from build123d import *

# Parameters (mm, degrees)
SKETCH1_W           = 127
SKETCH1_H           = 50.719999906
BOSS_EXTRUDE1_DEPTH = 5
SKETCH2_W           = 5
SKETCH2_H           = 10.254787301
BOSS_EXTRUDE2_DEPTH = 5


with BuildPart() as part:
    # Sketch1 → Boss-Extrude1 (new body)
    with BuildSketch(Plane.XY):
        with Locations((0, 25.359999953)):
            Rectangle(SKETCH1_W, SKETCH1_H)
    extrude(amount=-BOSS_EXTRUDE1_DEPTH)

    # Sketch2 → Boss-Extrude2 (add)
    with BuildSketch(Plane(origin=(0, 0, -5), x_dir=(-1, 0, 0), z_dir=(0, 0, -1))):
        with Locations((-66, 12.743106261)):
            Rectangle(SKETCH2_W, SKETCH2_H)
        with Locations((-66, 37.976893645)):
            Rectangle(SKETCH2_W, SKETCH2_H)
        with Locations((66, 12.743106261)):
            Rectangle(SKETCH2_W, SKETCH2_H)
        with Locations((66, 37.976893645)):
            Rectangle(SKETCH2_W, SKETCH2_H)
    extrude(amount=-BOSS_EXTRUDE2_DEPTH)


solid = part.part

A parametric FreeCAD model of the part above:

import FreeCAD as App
import Part
import Sketcher

doc = App.newDocument("Part")
body = doc.addObject("PartDesign::Body", "Body")

# Sketch on XY plane
sketch1 = body.newObject("Sketcher::SketchObject", "Sketch")
sketch1.AttachmentSupport = (doc.getObject("XY_Plane"), [""])
sketch1.MapMode = "FlatFace"
sketch1.addGeometry([
    Part.LineSegment(App.Vector(-63.5, 50.72, 0), App.Vector(-63.5, 0, 0)),
    Part.LineSegment(App.Vector(-63.5, 0, 0), App.Vector(63.5, 0, 0)),
    Part.LineSegment(App.Vector(63.5, 0, 0), App.Vector(63.5, 50.72, 0)),
    Part.LineSegment(App.Vector(63.5, 50.72, 0), App.Vector(-63.5, 50.72, 0)),
], False)
sketch1.addConstraint([
    Sketcher.Constraint("Coincident", 0, 2, 1, 1),
    Sketcher.Constraint("Coincident", 1, 2, 2, 1),
    Sketcher.Constraint("Coincident", 2, 2, 3, 1),
    Sketcher.Constraint("Coincident", 3, 2, 0, 1),
    Sketcher.Constraint("Vertical", 0),
    Sketcher.Constraint("Horizontal", 1),
    Sketcher.Constraint("Vertical", 2),
    Sketcher.Constraint("Horizontal", 3),
    Sketcher.Constraint("Symmetric", 0, 2, 1, 2, -1, 1),
    Sketcher.Constraint("DistanceX", 1, 1, 1, 2, 127.0),
    Sketcher.Constraint("DistanceY", 0, 2, 0, 1, 50.72),
])
pad1 = body.newObject("PartDesign::Pad", "Pad")
pad1.Profile = sketch1
pad1.Length = 5
pad1.Reversed = True

# Sketch on XY plane
sketch2 = body.newObject("Sketcher::SketchObject", "Sketch001")
sketch2.AttachmentSupport = (doc.getObject("XY_Plane"), [""])
sketch2.MapMode = "FlatFace"
sketch2.AttachmentOffset = App.Placement(App.Vector(0, 0, -5), App.Rotation())
sketch2.addGeometry([
    Part.LineSegment(App.Vector(68.5, 17.8705, 0), App.Vector(68.5, 7.615713, 0)),  # 0
    Part.LineSegment(App.Vector(68.5, 7.615713, 0), App.Vector(63.5, 7.615713, 0)),  # 1
    Part.LineSegment(App.Vector(63.5, 7.615713, 0), App.Vector(63.5, 17.8705, 0)),  # 2
    Part.LineSegment(App.Vector(63.5, 17.8705, 0), App.Vector(68.5, 17.8705, 0)),  # 3
    Part.LineSegment(App.Vector(68.5, 43.104287, 0), App.Vector(68.5, 32.8495, 0)),  # 4
    Part.LineSegment(App.Vector(68.5, 32.8495, 0), App.Vector(63.5, 32.8495, 0)),  # 5
    Part.LineSegment(App.Vector(63.5, 32.8495, 0), App.Vector(63.5, 43.104287, 0)),  # 6
    Part.LineSegment(App.Vector(63.5, 43.104287, 0), App.Vector(68.5, 43.104287, 0)),  # 7
    Part.LineSegment(App.Vector(-63.5, 17.8705, 0), App.Vector(-63.5, 7.615713, 0)),  # 8
    Part.LineSegment(App.Vector(-63.5, 7.615713, 0), App.Vector(-68.5, 7.615713, 0)),  # 9
    Part.LineSegment(App.Vector(-68.5, 7.615713, 0), App.Vector(-68.5, 17.8705, 0)),  # 10
    Part.LineSegment(App.Vector(-68.5, 17.8705, 0), App.Vector(-63.5, 17.8705, 0)),  # 11
    Part.LineSegment(App.Vector(-63.5, 43.104287, 0), App.Vector(-63.5, 32.8495, 0)),  # 12
    Part.LineSegment(App.Vector(-63.5, 32.8495, 0), App.Vector(-68.5, 32.8495, 0)),  # 13
    Part.LineSegment(App.Vector(-68.5, 32.8495, 0), App.Vector(-68.5, 43.104287, 0)),  # 14
    Part.LineSegment(App.Vector(-68.5, 43.104287, 0), App.Vector(-63.5, 43.104287, 0)),  # 15
], False)
sketch2.addConstraint([
    Sketcher.Constraint("Coincident", 0, 2, 1, 1),
    Sketcher.Constraint("Coincident", 1, 2, 2, 1),
    Sketcher.Constraint("Coincident", 2, 2, 3, 1),
    Sketcher.Constraint("Coincident", 3, 2, 0, 1),
    Sketcher.Constraint("Coincident", 4, 2, 5, 1),
    Sketcher.Constraint("Coincident", 5, 2, 6, 1),
    Sketcher.Constraint("Coincident", 6, 2, 7, 1),
    Sketcher.Constraint("Coincident", 7, 2, 4, 1),
    Sketcher.Constraint("Coincident", 8, 2, 9, 1),
    Sketcher.Constraint("Coincident", 9, 2, 10, 1),
    Sketcher.Constraint("Coincident", 10, 2, 11, 1),
    Sketcher.Constraint("Coincident", 11, 2, 8, 1),
    Sketcher.Constraint("Coincident", 12, 2, 13, 1),
    Sketcher.Constraint("Coincident", 13, 2, 14, 1),
    Sketcher.Constraint("Coincident", 14, 2, 15, 1),
    Sketcher.Constraint("Coincident", 15, 2, 12, 1),
    Sketcher.Constraint("Vertical", 0),
    Sketcher.Constraint("Horizontal", 1),
    Sketcher.Constraint("Vertical", 2),
    Sketcher.Constraint("Horizontal", 3),
    Sketcher.Constraint("Vertical", 4),
    Sketcher.Constraint("Horizontal", 5),
    Sketcher.Constraint("Vertical", 6),
    Sketcher.Constraint("Horizontal", 7),
    Sketcher.Constraint("Vertical", 8),
    Sketcher.Constraint("Horizontal", 9),
    Sketcher.Constraint("Vertical", 10),
    Sketcher.Constraint("Horizontal", 11),
    Sketcher.Constraint("Vertical", 12),
    Sketcher.Constraint("Horizontal", 13),
    Sketcher.Constraint("Vertical", 14),
    Sketcher.Constraint("Horizontal", 15),
    Sketcher.Constraint("Symmetric", 1, 2, 8, 2, -2),
    Sketcher.Constraint("Symmetric", 3, 2, 10, 2, -2),
    Sketcher.Constraint("Symmetric", 5, 2, 12, 2, -2),
    Sketcher.Constraint("Symmetric", 7, 2, 14, 2, -2),
    Sketcher.Constraint("Vertical", 3, 2, 4, 2),
    Sketcher.Constraint("Vertical", 2, 2, 5, 2),
    Sketcher.Constraint("Equal", 2, 4),
    Sketcher.Constraint("DistanceX", 1, 2, 1, 1, 5.0),
    Sketcher.Constraint("DistanceX", 8, 2, 1, 2, 127.0),
    Sketcher.Constraint("DistanceY", 3, 2, 4, 2, 14.979),
    Sketcher.Constraint("DistanceY", -1, 1, 2, 2, 17.8705),
    Sketcher.Constraint("DistanceY", 0, 2, 0, 1, 10.254787),
])
pad2 = body.newObject("PartDesign::Pad", "Pad001")
pad2.Profile = sketch2
pad2.Length = 5

doc.recompute()
